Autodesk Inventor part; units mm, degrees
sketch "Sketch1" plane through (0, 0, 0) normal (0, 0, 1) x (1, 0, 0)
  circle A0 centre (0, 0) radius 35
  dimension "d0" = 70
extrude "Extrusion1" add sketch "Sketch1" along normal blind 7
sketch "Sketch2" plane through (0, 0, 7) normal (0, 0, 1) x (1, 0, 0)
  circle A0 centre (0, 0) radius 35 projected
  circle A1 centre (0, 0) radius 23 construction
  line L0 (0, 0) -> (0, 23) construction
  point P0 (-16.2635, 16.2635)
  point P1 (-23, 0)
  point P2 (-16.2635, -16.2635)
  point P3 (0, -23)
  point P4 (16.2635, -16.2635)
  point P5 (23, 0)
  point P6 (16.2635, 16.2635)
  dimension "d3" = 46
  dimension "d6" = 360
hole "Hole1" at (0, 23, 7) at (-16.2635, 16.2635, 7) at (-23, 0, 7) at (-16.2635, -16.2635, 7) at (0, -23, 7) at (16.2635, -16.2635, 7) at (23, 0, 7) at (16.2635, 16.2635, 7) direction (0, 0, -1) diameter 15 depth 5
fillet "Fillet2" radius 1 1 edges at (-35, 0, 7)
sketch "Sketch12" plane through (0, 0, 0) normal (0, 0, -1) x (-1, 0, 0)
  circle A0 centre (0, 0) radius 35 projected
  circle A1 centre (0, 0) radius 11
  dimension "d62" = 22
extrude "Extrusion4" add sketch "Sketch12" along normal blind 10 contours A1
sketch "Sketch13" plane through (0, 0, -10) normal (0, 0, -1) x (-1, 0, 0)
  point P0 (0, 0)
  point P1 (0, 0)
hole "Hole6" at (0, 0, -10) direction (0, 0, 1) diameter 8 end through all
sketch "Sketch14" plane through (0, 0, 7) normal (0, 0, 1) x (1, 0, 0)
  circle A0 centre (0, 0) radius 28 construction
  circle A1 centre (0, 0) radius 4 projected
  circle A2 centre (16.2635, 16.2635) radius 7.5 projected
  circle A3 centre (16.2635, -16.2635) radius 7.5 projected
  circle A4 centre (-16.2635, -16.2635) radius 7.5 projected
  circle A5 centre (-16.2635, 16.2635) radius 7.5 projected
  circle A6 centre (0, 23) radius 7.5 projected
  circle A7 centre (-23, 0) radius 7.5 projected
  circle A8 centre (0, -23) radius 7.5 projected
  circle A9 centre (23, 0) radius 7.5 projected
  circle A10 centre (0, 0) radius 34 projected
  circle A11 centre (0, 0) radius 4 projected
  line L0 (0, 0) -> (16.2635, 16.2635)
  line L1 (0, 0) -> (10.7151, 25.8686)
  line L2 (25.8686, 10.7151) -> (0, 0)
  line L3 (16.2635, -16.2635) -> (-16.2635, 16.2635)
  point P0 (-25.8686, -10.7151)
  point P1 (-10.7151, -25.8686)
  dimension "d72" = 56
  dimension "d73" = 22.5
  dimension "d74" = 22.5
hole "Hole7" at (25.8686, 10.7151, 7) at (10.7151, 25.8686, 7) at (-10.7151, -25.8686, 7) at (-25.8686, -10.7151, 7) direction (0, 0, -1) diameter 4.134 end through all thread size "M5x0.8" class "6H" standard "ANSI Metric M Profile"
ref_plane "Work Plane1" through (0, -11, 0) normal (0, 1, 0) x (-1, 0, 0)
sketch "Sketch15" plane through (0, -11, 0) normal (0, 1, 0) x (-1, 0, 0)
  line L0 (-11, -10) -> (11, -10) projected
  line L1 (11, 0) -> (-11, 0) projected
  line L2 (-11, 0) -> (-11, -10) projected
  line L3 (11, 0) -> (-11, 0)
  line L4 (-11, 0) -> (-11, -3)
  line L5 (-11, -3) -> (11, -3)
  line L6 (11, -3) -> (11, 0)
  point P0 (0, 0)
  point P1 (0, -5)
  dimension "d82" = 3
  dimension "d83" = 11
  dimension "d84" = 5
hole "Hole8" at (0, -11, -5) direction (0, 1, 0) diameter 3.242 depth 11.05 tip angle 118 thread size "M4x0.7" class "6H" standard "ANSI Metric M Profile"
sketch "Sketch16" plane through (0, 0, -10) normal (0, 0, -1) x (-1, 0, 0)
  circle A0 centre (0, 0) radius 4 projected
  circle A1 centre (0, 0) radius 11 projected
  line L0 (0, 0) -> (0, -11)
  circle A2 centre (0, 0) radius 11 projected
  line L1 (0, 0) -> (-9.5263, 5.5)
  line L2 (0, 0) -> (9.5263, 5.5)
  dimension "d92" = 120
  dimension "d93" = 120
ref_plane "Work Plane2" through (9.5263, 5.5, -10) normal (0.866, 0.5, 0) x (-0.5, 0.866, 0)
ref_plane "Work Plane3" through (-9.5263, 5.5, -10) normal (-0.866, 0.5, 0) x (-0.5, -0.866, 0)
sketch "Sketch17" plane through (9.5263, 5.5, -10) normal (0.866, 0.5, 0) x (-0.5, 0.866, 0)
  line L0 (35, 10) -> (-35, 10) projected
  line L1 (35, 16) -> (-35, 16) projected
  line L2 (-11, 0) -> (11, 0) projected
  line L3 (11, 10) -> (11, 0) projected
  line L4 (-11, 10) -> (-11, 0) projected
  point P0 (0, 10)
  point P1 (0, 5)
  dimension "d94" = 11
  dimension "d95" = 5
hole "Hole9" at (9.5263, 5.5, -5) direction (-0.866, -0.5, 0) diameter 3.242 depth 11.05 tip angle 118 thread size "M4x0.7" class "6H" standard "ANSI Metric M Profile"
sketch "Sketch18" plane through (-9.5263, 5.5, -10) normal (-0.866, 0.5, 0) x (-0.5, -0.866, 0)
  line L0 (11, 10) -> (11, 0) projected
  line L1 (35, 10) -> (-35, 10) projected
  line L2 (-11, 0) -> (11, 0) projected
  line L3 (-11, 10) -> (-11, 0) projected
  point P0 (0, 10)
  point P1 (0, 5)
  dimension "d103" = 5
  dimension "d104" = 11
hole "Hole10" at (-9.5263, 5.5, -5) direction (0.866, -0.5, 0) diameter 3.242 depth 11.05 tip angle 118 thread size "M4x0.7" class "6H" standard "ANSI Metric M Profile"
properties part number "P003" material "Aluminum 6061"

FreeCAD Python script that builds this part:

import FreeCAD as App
import Part
import Sketcher

V = App.Vector


def edges_at(feature, points):
    """Names of the edges that pass closest to the given points."""
    edges = feature.Shape.Edges
    near = lambda p: min(range(len(edges)), key=lambda i: edges[i].distToShape(Part.Vertex(*p))[0])
    return sorted({f"Edge{near(p) + 1}" for p in points})

doc = App.newDocument("Part")
body = doc.addObject("PartDesign::Body", "Body")

sketch1 = body.newObject("Sketcher::SketchObject", "Sketch")
sketch1.AttachmentSupport = (doc.getObject("XY_Plane"), [""])
sketch1.MapMode = "FlatFace"
sketch1.addGeometry(Part.Circle(V(0, 0, 0), V(0, 0, 1), 35), False)
sketch1.addConstraint(Sketcher.Constraint("Coincident", 0, 3, -1, 1))
sketch1.addConstraint(Sketcher.Constraint("Diameter", 0, 70.0))
pad1 = body.newObject("PartDesign::Pad", "Pad")
pad1.Profile = sketch1
pad1.Length = 7

sketch2 = body.newObject("Sketcher::SketchObject", "Sketch001")
sketch2.AttachmentSupport = (doc.getObject("XY_Plane"), [""])
sketch2.MapMode = "FlatFace"
sketch2.AttachmentOffset = App.Placement(V(0, 0, 7), App.Rotation())
sketch2.addGeometry(Part.Circle(V(0, 23, 0), V(0, 0, 1), 7.5), False)
sketch2.addGeometry(Part.Circle(V(-16.2635, 16.2635, 0), V(0, 0, 1), 7.5), False)
sketch2.addGeometry(Part.Circle(V(-23, 0, 0), V(0, 0, 1), 7.5), False)
sketch2.addGeometry(Part.Circle(V(-16.2635, -16.2635, 0), V(0, 0, 1), 7.5), False)
sketch2.addGeometry(Part.Circle(V(0, -23, 0), V(0, 0, 1), 7.5), False)
sketch2.addGeometry(Part.Circle(V(16.2635, -16.2635, 0), V(0, 0, 1), 7.5), False)
sketch2.addGeometry(Part.Circle(V(23, 0, 0), V(0, 0, 1), 7.5), False)
sketch2.addGeometry(Part.Circle(V(16.2635, 16.2635, 0), V(0, 0, 1), 7.5), False)
sketch2.addConstraint(Sketcher.Constraint("Equal", 0, 1))
sketch2.addConstraint(Sketcher.Constraint("Equal", 1, 2))
sketch2.addConstraint(Sketcher.Constraint("Equal", 2, 3))
sketch2.addConstraint(Sketcher.Constraint("Equal", 3, 4))
sketch2.addConstraint(Sketcher.Constraint("Equal", 4, 5))
sketch2.addConstraint(Sketcher.Constraint("Equal", 5, 6))
sketch2.addConstraint(Sketcher.Constraint("Equal", 6, 7))
sketch2.addConstraint(Sketcher.Constraint("Symmetric", 0, 3, 4, 3, -1, 1))
sketch2.addConstraint(Sketcher.Constraint("Symmetric", 1, 3, 5, 3, -1, 1))
sketch2.addConstraint(Sketcher.Constraint("Symmetric", 2, 3, 6, 3, -1, 1))
sketch2.addConstraint(Sketcher.Constraint("Symmetric", 3, 3, 7, 3, -1, 1))
sketch2.addConstraint(Sketcher.Constraint("Symmetric", 3, 3, 5, 3, -2))
sketch2.addConstraint(Sketcher.Constraint("PointOnObject", 0, 3, -2))
sketch2.addConstraint(Sketcher.Constraint("PointOnObject", 2, 3, -1))
sketch2.addConstraint(Sketcher.Constraint("Diameter", 0, 15.0))
sketch2.addConstraint(Sketcher.Constraint("DistanceY", -1, 1, 0, 3, 23.0))
sketch2.addConstraint(Sketcher.Constraint("DistanceX", 2, 3, -1, 1, 23.0))
sketch2.addConstraint(Sketcher.Constraint("DistanceY", 3, 3, 1, 3, 32.527))
sketch2.addConstraint(Sketcher.Constraint("DistanceX", 3, 3, 5, 3, 32.527))
doc.recompute()
hole = body.newObject("PartDesign::Hole", "Hole")
hole.Profile = sketch2
hole.ThreadType = "None"
hole.Diameter = 15
hole.DepthType = "Dimension"
hole.Depth = 5
hole.DrillPoint = "Flat"
doc.recompute()

fillet = body.newObject("PartDesign::Fillet", "Fillet")
fillet.Base = (hole, edges_at(hole, [(-35, 0, 7)]))
fillet.Radius = 1

sketch3 = body.newObject("Sketcher::SketchObject", "Sketch002")
sketch3.AttachmentSupport = (doc.getObject("XY_Plane"), [""])
sketch3.MapMode = "FlatFace"
sketch3.addGeometry(Part.Circle(V(0, 0, 0), V(0, 0, 1), 11), False)
sketch3.addConstraint(Sketcher.Constraint("Coincident", 0, 3, -1, 1))
sketch3.addConstraint(Sketcher.Constraint("Diameter", 0, 22.0))
pad2 = body.newObject("PartDesign::Pad", "Pad001")
pad2.Profile = sketch3
pad2.Length = 10
pad2.Reversed = True

sketch4 = body.newObject("Sketcher::SketchObject", "Sketch003")
sketch4.AttachmentSupport = (doc.getObject("XY_Plane"), [""])
sketch4.MapMode = "FlatFace"
sketch4.AttachmentOffset = App.Placement(V(0, 0, -10), App.Rotation())
sketch4.addGeometry(Part.Circle(V(0, 0, 0), V(0, 0, 1), 4), False)
sketch4.addConstraint(Sketcher.Constraint("Coincident", 0, 3, -1, 1))
sketch4.addConstraint(Sketcher.Constraint("Diameter", 0, 8.0))
doc.recompute()
hole2 = body.newObject("PartDesign::Hole", "Hole001")
hole2.Profile = sketch4
hole2.ThreadType = "None"
hole2.Diameter = 8
hole2.DepthType = "ThroughAll"
hole2.Reversed = True

sketch5 = body.newObject("Sketcher::SketchObject", "Sketch004")
sketch5.AttachmentSupport = (doc.getObject("XY_Plane"), [""])
sketch5.MapMode = "FlatFace"
sketch5.AttachmentOffset = App.Placement(V(0, 0, 7), App.Rotation())
sketch5.addGeometry(Part.Circle(V(25.8686, 10.7151, 0), V(0, 0, 1), 2.067), False)
sketch5.addGeometry(Part.Circle(V(10.7151, 25.8686, 0), V(0, 0, 1), 2.067), False)
sketch5.addGeometry(Part.Circle(V(-10.7151, -25.8686, 0), V(0, 0, 1), 2.067), False)
sketch5.addGeometry(Part.Circle(V(-25.8686, -10.7151, 0), V(0, 0, 1), 2.067), False)
sketch5.addConstraint(Sketcher.Constraint("Equal", 0, 1))
sketch5.addConstraint(Sketcher.Constraint("Equal", 1, 2))
sketch5.addConstraint(Sketcher.Constraint("Equal", 2, 3))
sketch5.addConstraint(Sketcher.Constraint("Symmetric", 1, 3, 2, 3, -1, 1))
sketch5.addConstraint(Sketcher.Constraint("Symmetric", 0, 3, 3, 3, -1, 1))
sketch5.addConstraint(Sketcher.Constraint("Diameter", 0, 4.134))
sketch5.addConstraint(Sketcher.Constraint("DistanceY", -1, 1, 0, 3, 10.715))
sketch5.addConstraint(Sketcher.Constraint("DistanceX", -1, 1, 1, 3, 10.715))
sketch5.addConstraint(Sketcher.Constraint("DistanceX", -1, 1, 0, 3, 25.8686))
sketch5.addConstraint(Sketcher.Constraint("DistanceY", -1, 1, 1, 3, 25.8686))
doc.recompute()
hole3 = body.newObject("PartDesign::Hole", "Hole002")
hole3.Profile = sketch5
hole3.ThreadType = "None"
hole3.Diameter = 4.134
hole3.DepthType = "ThroughAll"

sketch6 = body.newObject("Sketcher::SketchObject", "Sketch005")
sketch6.AttachmentSupport = (doc.getObject("XZ_Plane"), [""])
sketch6.MapMode = "FlatFace"
sketch6.AttachmentOffset = App.Placement(V(0, 0, 11), App.Rotation())
sketch6.addGeometry(Part.Circle(V(0, -5, 0), V(0, 0, 1), 1.621), False)
sketch6.addConstraint(Sketcher.Constraint("PointOnObject", 0, 3, -2))
sketch6.addConstraint(Sketcher.Constraint("Diameter", 0, 3.242))
sketch6.addConstraint(Sketcher.Constraint("DistanceY", 0, 3, -1, 1, 5.0))
doc.recompute()
hole4 = body.newObject("PartDesign::Hole", "Hole003")
hole4.Profile = sketch6
hole4.ThreadType = "None"
hole4.Diameter = 3.242
hole4.DepthType = "Dimension"
hole4.Depth = 11.05
hole4.DrillPoint = "Angled"
hole4.DrillPointAngle = 118

sketch7 = body.newObject("Sketcher::SketchObject", "Sketch006")
sketch7.Placement = App.Placement(V(9.526295, 5.500009, 0), App.Rotation(V(-0.5, 0.866025404, 0), V(0, 0, 1), V(0.866025404, 0.5, 0), "ZXY"))
sketch7.addGeometry(Part.Circle(V(-0.00001, -5, 0), V(0, 0, 1), 1.621), False)
sketch7.addConstraint(Sketcher.Constraint("PointOnObject", 0, 3, -2))
sketch7.addConstraint(Sketcher.Constraint("Diameter", 0, 3.242))
sketch7.addConstraint(Sketcher.Constraint("DistanceY", 0, 3, -1, 1, 5.0))
doc.recompute()
hole5 = body.newObject("PartDesign::Hole", "Hole004")
hole5.Profile = sketch7
hole5.ThreadType = "None"
hole5.Diameter = 3.242
hole5.DepthType = "Dimension"
hole5.Depth = 11.05
hole5.DrillPoint = "Angled"
hole5.DrillPointAngle = 118

sketch8 = body.newObject("Sketcher::SketchObject", "Sketch007")
sketch8.Placement = App.Placement(V(-9.526295, 5.500009, 0), App.Rotation(V(-0.5, -0.866025404, 0), V(0, 0, 1), V(-0.866025404, 0.5, 0), "ZXY"))
sketch8.addGeometry(Part.Circle(V(0.00001, -5, 0), V(0, 0, 1), 1.621), False)
sketch8.addConstraint(Sketcher.Constraint("PointOnObject", 0, 3, -2))
sketch8.addConstraint(Sketcher.Constraint("Diameter", 0, 3.242))
sketch8.addConstraint(Sketcher.Constraint("DistanceY", 0, 3, -1, 1, 5.0))
doc.recompute()
hole6 = body.newObject("PartDesign::Hole", "Hole005")
hole6.Profile = sketch8
hole6.ThreadType = "None"
hole6.Diameter = 3.242
hole6.DepthType = "Dimension"
hole6.Depth = 11.05
hole6.DrillPoint = "Angled"
hole6.DrillPointAngle = 118

doc.recompute()
